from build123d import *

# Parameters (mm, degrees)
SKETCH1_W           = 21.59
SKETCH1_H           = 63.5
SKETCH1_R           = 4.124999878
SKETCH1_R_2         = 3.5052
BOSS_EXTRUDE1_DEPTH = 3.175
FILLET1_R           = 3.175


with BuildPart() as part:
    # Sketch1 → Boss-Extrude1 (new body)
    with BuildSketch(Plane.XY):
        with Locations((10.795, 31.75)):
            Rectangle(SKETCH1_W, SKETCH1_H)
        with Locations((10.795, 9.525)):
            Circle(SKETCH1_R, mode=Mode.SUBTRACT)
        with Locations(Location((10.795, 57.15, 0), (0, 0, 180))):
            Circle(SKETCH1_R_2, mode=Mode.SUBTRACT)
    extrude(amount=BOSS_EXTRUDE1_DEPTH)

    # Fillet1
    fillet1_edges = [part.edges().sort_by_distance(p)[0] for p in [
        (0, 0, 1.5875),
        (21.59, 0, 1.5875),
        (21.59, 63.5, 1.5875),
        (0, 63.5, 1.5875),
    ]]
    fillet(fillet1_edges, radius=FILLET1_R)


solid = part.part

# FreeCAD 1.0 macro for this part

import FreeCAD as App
import Part
import Sketcher
Q = App.Units.Quantity


def edges_at(feature, points):
    """Names of the edges that pass closest to the given points."""
    edges = feature.Shape.Edges
    near = lambda p: min(range(len(edges)), key=lambda i: edges[i].distToShape(Part.Vertex(*p))[0])
    return sorted({f"Edge{near(p) + 1}" for p in points})


def add_polygon(sketch, points):
    """Adds a closed chain of lines whose ends are joined by coincident constraints."""
    first, n = sketch.GeometryCount, len(points)
    for a, b in zip(points, points[1:] + points[:1]):
        sketch.addGeometry(Part.LineSegment(App.Vector(*a, 0), App.Vector(*b, 0)), False)
    for i in range(n):
        sketch.addConstraint(Sketcher.Constraint("Coincident", first + i, 2, first + (i + 1) % n, 1))

doc = App.newDocument("Part")
params = doc.addObject("Spreadsheet::Sheet", "Params")
for row, (alias, value) in enumerate([
    ("sketch1_diameter", "0.276 in"),
    ("sketch1_height", "2.5 in"),
    ("sketch1_width", "0.85 in"),
    ("pad1_length", "0.125 in"),
    ("fillet_radius", "0.125 in"),
], start=1):
    params.set(f"A{row}", alias)
    params.set(f"B{row}", "=" + value)
    params.setAlias(f"B{row}", alias)

body = doc.addObject("PartDesign::Body", "Body")

# Sketch on XY plane
sketch1 = body.newObject("Sketcher::SketchObject", "Sketch")
sketch1.AttachmentSupport = (doc.getObject("XY_Plane"), [""])
sketch1.MapMode = "FlatFace"
add_polygon(sketch1, [(0, 63.5), (0, 0), (21.6, 0), (21.6, 63.5)])  # lines 0-3
sketch1.addGeometry(Part.Circle(App.Vector(10.8, 9.5, 0), App.Vector(0, 0, 1), 4.1), False)  # 4
sketch1.addGeometry(Part.Circle(App.Vector(10.8, 57.1, 0), App.Vector(0, 0, 1), 3.5), False)  # 5
sketch1.addConstraint(Sketcher.Constraint("Vertical", 0))
sketch1.addConstraint(Sketcher.Constraint("Horizontal", 1))
sketch1.addConstraint(Sketcher.Constraint("Vertical", 2))
sketch1.addConstraint(Sketcher.Constraint("Horizontal", 3))
sketch1.addConstraint(Sketcher.Constraint("Coincident", 0, 2, -1, 1))
sketch1.addConstraint(Sketcher.Constraint("Vertical", 4, 3, 5, 3))
sketch1.addConstraint(Sketcher.Constraint("Diameter", 5, Q("0.276 in")))
sketch1.addConstraint(Sketcher.Constraint("DistanceY", 0, 2, 0, 1, Q("2.5 in")))
sketch1.addConstraint(Sketcher.Constraint("DistanceX", 1, 1, 1, 2, Q("0.85 in")))
sketch1.addConstraint(Sketcher.Constraint("Diameter", 4, Q("8.25 mm")))
sketch1.addConstraint(Sketcher.Constraint("DistanceY", -1, 1, 5, 3, Q("2.25 in")))
sketch1.addConstraint(Sketcher.Constraint("DistanceX", -1, 1, 4, 3, Q("0.425 in")))
sketch1.addConstraint(Sketcher.Constraint("DistanceY", -1, 1, 4, 3, Q("0.375 in")))
sketch1.setExpression("Constraints[10]", "Params.sketch1_diameter")
sketch1.setExpression("Constraints[11]", "Params.sketch1_height")
sketch1.setExpression("Constraints[12]", "Params.sketch1_width")
pad1 = body.newObject("PartDesign::Pad", "Pad")
pad1.Profile = sketch1
pad1.setExpression("Length", "Params.pad1_length")
doc.recompute()

fillet = body.newObject("PartDesign::Fillet", "Fillet")
fillet.Base = (pad1, edges_at(pad1, [
    (0, 0, 1.587),
    (21.59, 0, 1.587),
    (21.59, 63.5, 1.587),
    (0, 63.5, 1.587),
]))
fillet.setExpression("Radius", "Params.fillet_radius")

doc.recompute()
